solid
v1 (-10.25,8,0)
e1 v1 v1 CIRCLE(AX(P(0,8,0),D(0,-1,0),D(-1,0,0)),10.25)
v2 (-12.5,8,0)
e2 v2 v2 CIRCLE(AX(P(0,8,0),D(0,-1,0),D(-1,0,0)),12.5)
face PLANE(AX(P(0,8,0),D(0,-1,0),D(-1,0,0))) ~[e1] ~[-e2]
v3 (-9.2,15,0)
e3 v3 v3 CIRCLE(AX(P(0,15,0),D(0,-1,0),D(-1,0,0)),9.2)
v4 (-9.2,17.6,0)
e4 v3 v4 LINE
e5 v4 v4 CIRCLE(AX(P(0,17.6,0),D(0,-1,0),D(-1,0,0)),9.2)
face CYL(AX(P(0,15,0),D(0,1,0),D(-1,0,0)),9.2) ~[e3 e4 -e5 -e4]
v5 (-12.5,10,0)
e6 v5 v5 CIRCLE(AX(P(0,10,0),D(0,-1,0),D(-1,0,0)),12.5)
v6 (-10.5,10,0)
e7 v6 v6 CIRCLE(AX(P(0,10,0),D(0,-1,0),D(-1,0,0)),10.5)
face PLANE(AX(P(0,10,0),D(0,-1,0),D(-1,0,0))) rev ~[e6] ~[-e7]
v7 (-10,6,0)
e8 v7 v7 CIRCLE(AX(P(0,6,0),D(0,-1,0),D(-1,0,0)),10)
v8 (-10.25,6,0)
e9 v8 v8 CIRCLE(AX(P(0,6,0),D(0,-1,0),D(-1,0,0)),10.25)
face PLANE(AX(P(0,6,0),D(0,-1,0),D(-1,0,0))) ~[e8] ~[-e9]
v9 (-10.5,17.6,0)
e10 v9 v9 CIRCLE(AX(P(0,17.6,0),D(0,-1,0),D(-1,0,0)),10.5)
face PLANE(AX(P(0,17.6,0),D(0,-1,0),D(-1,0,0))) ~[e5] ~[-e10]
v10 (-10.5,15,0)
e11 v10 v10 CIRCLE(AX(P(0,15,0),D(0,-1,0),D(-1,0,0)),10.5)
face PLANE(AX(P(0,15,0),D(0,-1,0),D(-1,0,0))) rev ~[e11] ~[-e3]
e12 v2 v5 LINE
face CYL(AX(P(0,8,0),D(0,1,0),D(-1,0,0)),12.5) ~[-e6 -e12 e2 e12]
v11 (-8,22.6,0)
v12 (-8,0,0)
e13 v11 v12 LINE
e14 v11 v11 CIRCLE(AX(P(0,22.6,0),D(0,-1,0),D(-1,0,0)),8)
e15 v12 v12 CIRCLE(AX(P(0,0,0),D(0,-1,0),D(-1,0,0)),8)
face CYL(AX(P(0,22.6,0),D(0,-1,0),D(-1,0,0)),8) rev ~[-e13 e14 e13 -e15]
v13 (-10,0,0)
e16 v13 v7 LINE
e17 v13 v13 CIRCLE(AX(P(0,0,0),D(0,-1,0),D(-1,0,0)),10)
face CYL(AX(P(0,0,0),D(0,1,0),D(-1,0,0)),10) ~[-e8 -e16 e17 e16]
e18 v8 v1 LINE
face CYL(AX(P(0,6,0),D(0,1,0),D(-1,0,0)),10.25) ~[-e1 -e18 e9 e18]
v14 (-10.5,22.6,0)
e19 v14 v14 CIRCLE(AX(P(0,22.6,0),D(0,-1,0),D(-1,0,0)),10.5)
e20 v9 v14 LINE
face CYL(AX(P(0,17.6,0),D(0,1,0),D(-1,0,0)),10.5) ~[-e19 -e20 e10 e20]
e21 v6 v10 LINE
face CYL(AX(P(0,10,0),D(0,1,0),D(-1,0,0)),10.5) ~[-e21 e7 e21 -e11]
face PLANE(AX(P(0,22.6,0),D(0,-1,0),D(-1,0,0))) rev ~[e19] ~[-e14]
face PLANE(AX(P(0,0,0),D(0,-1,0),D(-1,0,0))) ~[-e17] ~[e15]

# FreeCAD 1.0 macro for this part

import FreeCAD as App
import Part
import Sketcher


def add_polygon(sketch, points):
    """Adds a closed chain of lines whose ends are joined by coincident constraints."""
    first, n = sketch.GeometryCount, len(points)
    for a, b in zip(points, points[1:] + points[:1]):
        sketch.addGeometry(Part.LineSegment(App.Vector(*a, 0), App.Vector(*b, 0)), False)
    for i in range(n):
        sketch.addConstraint(Sketcher.Constraint("Coincident", first + i, 2, first + (i + 1) % n, 1))

doc = App.newDocument("Part")
params = doc.addObject("Spreadsheet::Sheet", "Params")
for row, (alias, value) in enumerate([
    ("sketch1_width", "2 mm"),
    ("sketch1_height", "5 mm"),
    ("sketch1_height2", "6 mm"),
    ("sketch1_width2", "1.3 mm"),
    ("sketch1_height3", "2.6 mm"),
    ("revolution_angle", "360 deg"),
], start=1):
    params.set(f"A{row}", alias)
    params.set(f"B{row}", "=" + value)
    params.setAlias(f"B{row}", alias)

body = doc.addObject("PartDesign::Body", "Body")

# Sketch on XY plane
sketch1 = body.newObject("Sketcher::SketchObject", "Sketch")
sketch1.AttachmentSupport = (doc.getObject("XY_Plane"), [""])
sketch1.MapMode = "FlatFace"
add_polygon(sketch1, [(-10, 0), (-8, 0), (-8, 22.6), (-10.5, 22.6), (-10.5, 17.6), (-9.2, 17.6), (-9.2, 15), (-10.5, 15), (-10.5, 10), (-12.5, 10), (-12.5, 8), (-10.25, 8), (-10.25, 6), (-10, 6)])  # lines 0-13
sketch1.addConstraint(Sketcher.Constraint("Horizontal", 0))
sketch1.addConstraint(Sketcher.Constraint("Vertical", 1))
sketch1.addConstraint(Sketcher.Constraint("Horizontal", 2))
sketch1.addConstraint(Sketcher.Constraint("Vertical", 3))
sketch1.addConstraint(Sketcher.Constraint("Horizontal", 4))
sketch1.addConstraint(Sketcher.Constraint("Vertical", 5))
sketch1.addConstraint(Sketcher.Constraint("Horizontal", 6))
sketch1.addConstraint(Sketcher.Constraint("Vertical", 7))
sketch1.addConstraint(Sketcher.Constraint("Horizontal", 8))
sketch1.addConstraint(Sketcher.Constraint("Vertical", 9))
sketch1.addConstraint(Sketcher.Constraint("Horizontal", 10))
sketch1.addConstraint(Sketcher.Constraint("Vertical", 11))
sketch1.addConstraint(Sketcher.Constraint("Horizontal", 12))
sketch1.addConstraint(Sketcher.Constraint("Vertical", 13))
sketch1.addConstraint(Sketcher.Constraint("PointOnObject", 0, 2, -1))
sketch1.addConstraint(Sketcher.Constraint("Vertical", 3, 2, 6, 2))
sketch1.addConstraint(Sketcher.Constraint("Equal", 0, 8))
sketch1.addConstraint(Sketcher.Constraint("Equal", 3, 7))
sketch1.addConstraint(Sketcher.Constraint("Equal", 8, 9))
sketch1.addConstraint(Sketcher.Constraint("Equal", 9, 11))
sketch1.addConstraint(Sketcher.Constraint("DistanceX", 0, 1, 0, 2, 2.0))
sketch1.addConstraint(Sketcher.Constraint("DistanceY", 3, 2, 3, 1, 5.0))
sketch1.addConstraint(Sketcher.Constraint("DistanceY", 13, 2, 13, 1, 6.0))
sketch1.addConstraint(Sketcher.Constraint("DistanceX", 4, 1, 4, 2, 1.3))
sketch1.addConstraint(Sketcher.Constraint("DistanceY", 5, 2, 5, 1, 2.6))
sketch1.addConstraint(Sketcher.Constraint("DistanceX", 0, 2, -1, 1, 8.0))
sketch1.addConstraint(Sketcher.Constraint("DistanceX", 10, 1, 10, 2, 2.25))
sketch1.addConstraint(Sketcher.Constraint("DistanceX", 12, 1, 12, 2, 0.25))
sketch1.setExpression("Constraints[34]", "Params.sketch1_width")
sketch1.setExpression("Constraints[35]", "Params.sketch1_height")
sketch1.setExpression("Constraints[36]", "Params.sketch1_height2")
sketch1.setExpression("Constraints[37]", "Params.sketch1_width2")
sketch1.setExpression("Constraints[38]", "Params.sketch1_height3")
revolution = body.newObject("PartDesign::Revolution", "Revolution")
revolution.Profile = sketch1
revolution.ReferenceAxis = (sketch1, ["V_Axis"])
revolution.setExpression("Angle", "Params.revolution_angle")

doc.recompute()
